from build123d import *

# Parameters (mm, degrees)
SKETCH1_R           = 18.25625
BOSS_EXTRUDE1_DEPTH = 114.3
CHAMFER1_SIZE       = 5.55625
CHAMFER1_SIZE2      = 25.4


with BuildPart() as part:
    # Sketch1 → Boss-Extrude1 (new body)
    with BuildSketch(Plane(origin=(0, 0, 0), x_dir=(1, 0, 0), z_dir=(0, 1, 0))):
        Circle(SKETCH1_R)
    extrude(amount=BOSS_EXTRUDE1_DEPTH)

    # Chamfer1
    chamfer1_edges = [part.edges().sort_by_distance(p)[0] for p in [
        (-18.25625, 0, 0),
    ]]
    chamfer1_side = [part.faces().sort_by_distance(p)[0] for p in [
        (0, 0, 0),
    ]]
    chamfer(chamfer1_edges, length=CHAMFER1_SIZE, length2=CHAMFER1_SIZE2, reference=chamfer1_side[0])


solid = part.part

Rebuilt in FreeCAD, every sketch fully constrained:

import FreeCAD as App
import Part
import Sketcher
from FreeCAD import Vector
Q = App.Units.Quantity


def edges_at(feature, points):
    """Names of the edges that pass closest to the given points."""
    edges = feature.Shape.Edges
    near = lambda p: min(range(len(edges)), key=lambda i: edges[i].distToShape(Part.Vertex(*p))[0])
    return sorted({f"Edge{near(p) + 1}" for p in points})

doc = App.newDocument("Part")
body = doc.addObject("PartDesign::Body", "Body")

# Sketch on XZ plane
sketch1 = body.newObject("Sketcher::SketchObject", "Sketch")
sketch1.AttachmentSupport = (doc.getObject("XZ_Plane"), [""])
sketch1.MapMode = "FlatFace"
sketch1.addGeometry(Part.Circle(Vector(0, 0, 0), Vector(0, 0, 1), 18), False)
sketch1.addConstraint([
    Sketcher.Constraint("Coincident", 0, 3, -1, 1),
    Sketcher.Constraint("Diameter", 0, Q("1.4375 in")),
])
pad1 = body.newObject("PartDesign::Pad", "Pad")
pad1.Profile = sketch1
pad1.Length = Q("4.5 in")
pad1.Reversed = True
doc.recompute()

chamfer = body.newObject("PartDesign::Chamfer", "Chamfer")
chamfer.Base = (pad1, edges_at(pad1, [(-18.256, 0, 0)]))
chamfer.ChamferType = "Two distances"
chamfer.Size = Q("0.21875 in")
chamfer.Size2 = Q("1 in")
chamfer.FlipDirection = True

doc.recompute()
